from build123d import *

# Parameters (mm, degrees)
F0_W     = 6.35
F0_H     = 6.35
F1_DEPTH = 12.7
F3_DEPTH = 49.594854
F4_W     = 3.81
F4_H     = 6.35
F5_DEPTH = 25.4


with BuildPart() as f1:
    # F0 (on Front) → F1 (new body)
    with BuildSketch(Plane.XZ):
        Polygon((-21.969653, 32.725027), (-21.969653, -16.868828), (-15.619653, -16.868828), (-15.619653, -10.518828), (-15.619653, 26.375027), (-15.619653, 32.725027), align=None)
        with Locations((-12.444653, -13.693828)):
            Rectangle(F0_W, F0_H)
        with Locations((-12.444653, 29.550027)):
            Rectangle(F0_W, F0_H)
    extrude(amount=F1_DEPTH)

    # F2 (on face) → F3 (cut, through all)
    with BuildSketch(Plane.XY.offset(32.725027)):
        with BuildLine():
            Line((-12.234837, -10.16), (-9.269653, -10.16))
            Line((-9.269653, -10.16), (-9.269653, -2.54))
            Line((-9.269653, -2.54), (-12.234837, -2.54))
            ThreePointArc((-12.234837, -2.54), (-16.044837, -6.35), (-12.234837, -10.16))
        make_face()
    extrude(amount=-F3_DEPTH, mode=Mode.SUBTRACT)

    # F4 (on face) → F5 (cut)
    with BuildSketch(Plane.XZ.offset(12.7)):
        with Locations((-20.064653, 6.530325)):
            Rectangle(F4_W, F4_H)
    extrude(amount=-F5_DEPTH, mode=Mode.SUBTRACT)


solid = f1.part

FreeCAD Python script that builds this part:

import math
import FreeCAD as App
import Part
import Sketcher
Q = App.Units.Quantity

doc = App.newDocument("Part")
params = doc.addObject("Spreadsheet::Sheet", "Params")
for row, (alias, value) in enumerate([
    ("sketch1_width", "0.5 in"),
    ("sketch1_width2", "0.25 in"),
    ("pad1_length", "0.5 in"),
    ("sketch2_radius", "0.15 in"),
    ("sketch3_width", "0.15 in"),
    ("sketch3_height", "0.25 in"),
    ("pocket2_length", "1 in"),
], start=1):
    params.set(f"A{row}", alias)
    params.set(f"B{row}", "=" + value)
    params.setAlias(f"B{row}", alias)

body = doc.addObject("PartDesign::Body", "Body")

# Sketch on XZ plane
sketch1 = doc.addObject("Sketcher::SketchObject", "Sketch")
body.addObject(sketch1)
sketch1.AttachmentSupport = (doc.XZ_Plane, [""])
sketch1.MapMode = "FlatFace"
sketch1.addGeometry([
    Part.LineSegment(App.Vector(-22, 33, 0), App.Vector(-22, -17, 0)),  # 0
    Part.LineSegment(App.Vector(-22, -17, 0), App.Vector(-9, -17, 0)),  # 1
    Part.LineSegment(App.Vector(-9, -17, 0), App.Vector(-9, -11, 0)),  # 2
    Part.LineSegment(App.Vector(-9, -11, 0), App.Vector(-16, -11, 0)),  # 3
    Part.LineSegment(App.Vector(-16, -11, 0), App.Vector(-16, 26, 0)),  # 4
    Part.LineSegment(App.Vector(-16, 26, 0), App.Vector(-9, 26, 0)),  # 5
    Part.LineSegment(App.Vector(-9, 26, 0), App.Vector(-9, 33, 0)),  # 6
    Part.LineSegment(App.Vector(-9, 33, 0), App.Vector(-22, 33, 0)),  # 7
], False)
sketch1.addConstraint([
    Sketcher.Constraint("Coincident", 0, 2, 1, 1),
    Sketcher.Constraint("Coincident", 1, 2, 2, 1),
    Sketcher.Constraint("Coincident", 2, 2, 3, 1),
    Sketcher.Constraint("Coincident", 3, 2, 4, 1),
    Sketcher.Constraint("Coincident", 4, 2, 5, 1),
    Sketcher.Constraint("Coincident", 5, 2, 6, 1),
    Sketcher.Constraint("Coincident", 6, 2, 7, 1),
    Sketcher.Constraint("Coincident", 7, 2, 0, 1),
    Sketcher.Constraint("Vertical", 0),
    Sketcher.Constraint("Horizontal", 1),
    Sketcher.Constraint("Vertical", 2),
    Sketcher.Constraint("Horizontal", 3),
    Sketcher.Constraint("Vertical", 4),
    Sketcher.Constraint("Horizontal", 5),
    Sketcher.Constraint("Vertical", 6),
    Sketcher.Constraint("Horizontal", 7),
    Sketcher.Constraint("Vertical", 2, 2, 5, 2),
    Sketcher.Constraint("Equal", 5, 2),
    Sketcher.Constraint("Equal", 2, 6),
    Sketcher.Constraint("DistanceX", 1, 1, 1, 2, Q("0.5 in")),
    Sketcher.Constraint("DistanceX", 3, 2, 3, 1, Q("0.25 in")),
    Sketcher.Constraint("DistanceY", 0, 2, 0, 1, Q("49.593855 mm")),
    Sketcher.Constraint("DistanceY", 0, 2, -1, 1, Q("16.868828 mm")),
    Sketcher.Constraint("DistanceX", 0, 2, -1, 1, Q("21.969653 mm")),
])
sketch1.setExpression("Constraints[19]", "Params.sketch1_width")
sketch1.setExpression("Constraints[20]", "Params.sketch1_width2")
pad1 = doc.addObject("PartDesign::Pad", "Pad")
body.addObject(pad1)
pad1.Profile = sketch1
pad1.setExpression("Length", "Params.pad1_length")

# Sketch on XY plane
sketch2 = doc.addObject("Sketcher::SketchObject", "Sketch001")
body.addObject(sketch2)
sketch2.AttachmentSupport = (doc.XY_Plane, [""])
sketch2.MapMode = "FlatFace"
sketch2.AttachmentOffset = App.Placement(App.Vector(0, 0, 32.725027), App.Rotation())
sketch2.addGeometry([
    Part.LineSegment(App.Vector(-12.2, -10.2, 0), App.Vector(-9.3, -10.2, 0)),
    Part.LineSegment(App.Vector(-9.3, -10.2, 0), App.Vector(-9.3, -2.5, 0)),
    Part.LineSegment(App.Vector(-9.3, -2.5, 0), App.Vector(-12.2, -2.5, 0)),
    Part.ArcOfCircle(Part.Circle(App.Vector(-12.2, -6.3, 0), App.Vector(0, 0, 1), 3.8), math.radians(90), math.radians(270)),
], False)
sketch2.addConstraint([
    Sketcher.Constraint("Coincident", 0, 2, 1, 1),
    Sketcher.Constraint("Coincident", 1, 2, 2, 1),
    Sketcher.Constraint("Tangent", 2, 2, 3, 1),
    Sketcher.Constraint("Tangent", 3, 2, 0, 1),
    Sketcher.Constraint("Horizontal", 0),
    Sketcher.Constraint("Vertical", 1),
    Sketcher.Constraint("Horizontal", 2),
    Sketcher.Constraint("Radius", 3, Q("0.15 in")),
    Sketcher.Constraint("DistanceY", 0, 2, -1, 1, Q("0.4 in")),
    Sketcher.Constraint("DistanceX", 0, 1, 0, 2, Q("2.965184 mm")),
    Sketcher.Constraint("DistanceX", 3, 3, -1, 1, Q("12.234837 mm")),
])
sketch2.setExpression("Constraints[7]", "Params.sketch2_radius")
pocket1 = doc.addObject("PartDesign::Pocket", "Pocket")
body.addObject(pocket1)
pocket1.Profile = sketch2
pocket1.Type = "ThroughAll"

# Sketch on XZ plane
sketch3 = doc.addObject("Sketcher::SketchObject", "Sketch002")
body.addObject(sketch3)
sketch3.AttachmentSupport = (doc.XZ_Plane, [""])
sketch3.MapMode = "FlatFace"
sketch3.AttachmentOffset = App.Placement(App.Vector(0, 0, 0.5 * 25.4), App.Rotation())
sketch3.addGeometry([
    Part.LineSegment(App.Vector(-22, 9.7, 0), App.Vector(-22, 3.4, 0)),
    Part.LineSegment(App.Vector(-22, 3.4, 0), App.Vector(-18.2, 3.4, 0)),
    Part.LineSegment(App.Vector(-18.2, 3.4, 0), App.Vector(-18.2, 9.7, 0)),
    Part.LineSegment(App.Vector(-18.2, 9.7, 0), App.Vector(-22, 9.7, 0)),
], False)
sketch3.addConstraint([
    Sketcher.Constraint("Coincident", 0, 2, 1, 1),
    Sketcher.Constraint("Coincident", 1, 2, 2, 1),
    Sketcher.Constraint("Coincident", 2, 2, 3, 1),
    Sketcher.Constraint("Coincident", 3, 2, 0, 1),
    Sketcher.Constraint("Vertical", 0),
    Sketcher.Constraint("Horizontal", 1),
    Sketcher.Constraint("Vertical", 2),
    Sketcher.Constraint("Horizontal", 3),
    Sketcher.Constraint("DistanceX", 1, 1, 1, 2, Q("0.15 in")),
    Sketcher.Constraint("DistanceY", 0, 2, 0, 1, Q("0.25 in")),
    Sketcher.Constraint("DistanceX", 0, 2, -1, 1, Q("21.969653 mm")),
    Sketcher.Constraint("DistanceY", -1, 1, 0, 2, Q("3.355325 mm")),
])
sketch3.setExpression("Constraints[8]", "Params.sketch3_width")
sketch3.setExpression("Constraints[9]", "Params.sketch3_height")
pocket2 = doc.addObject("PartDesign::Pocket", "Pocket001")
body.addObject(pocket2)
pocket2.Profile = sketch3
pocket2.setExpression("Length", "Params.pocket2_length")

doc.recompute()
